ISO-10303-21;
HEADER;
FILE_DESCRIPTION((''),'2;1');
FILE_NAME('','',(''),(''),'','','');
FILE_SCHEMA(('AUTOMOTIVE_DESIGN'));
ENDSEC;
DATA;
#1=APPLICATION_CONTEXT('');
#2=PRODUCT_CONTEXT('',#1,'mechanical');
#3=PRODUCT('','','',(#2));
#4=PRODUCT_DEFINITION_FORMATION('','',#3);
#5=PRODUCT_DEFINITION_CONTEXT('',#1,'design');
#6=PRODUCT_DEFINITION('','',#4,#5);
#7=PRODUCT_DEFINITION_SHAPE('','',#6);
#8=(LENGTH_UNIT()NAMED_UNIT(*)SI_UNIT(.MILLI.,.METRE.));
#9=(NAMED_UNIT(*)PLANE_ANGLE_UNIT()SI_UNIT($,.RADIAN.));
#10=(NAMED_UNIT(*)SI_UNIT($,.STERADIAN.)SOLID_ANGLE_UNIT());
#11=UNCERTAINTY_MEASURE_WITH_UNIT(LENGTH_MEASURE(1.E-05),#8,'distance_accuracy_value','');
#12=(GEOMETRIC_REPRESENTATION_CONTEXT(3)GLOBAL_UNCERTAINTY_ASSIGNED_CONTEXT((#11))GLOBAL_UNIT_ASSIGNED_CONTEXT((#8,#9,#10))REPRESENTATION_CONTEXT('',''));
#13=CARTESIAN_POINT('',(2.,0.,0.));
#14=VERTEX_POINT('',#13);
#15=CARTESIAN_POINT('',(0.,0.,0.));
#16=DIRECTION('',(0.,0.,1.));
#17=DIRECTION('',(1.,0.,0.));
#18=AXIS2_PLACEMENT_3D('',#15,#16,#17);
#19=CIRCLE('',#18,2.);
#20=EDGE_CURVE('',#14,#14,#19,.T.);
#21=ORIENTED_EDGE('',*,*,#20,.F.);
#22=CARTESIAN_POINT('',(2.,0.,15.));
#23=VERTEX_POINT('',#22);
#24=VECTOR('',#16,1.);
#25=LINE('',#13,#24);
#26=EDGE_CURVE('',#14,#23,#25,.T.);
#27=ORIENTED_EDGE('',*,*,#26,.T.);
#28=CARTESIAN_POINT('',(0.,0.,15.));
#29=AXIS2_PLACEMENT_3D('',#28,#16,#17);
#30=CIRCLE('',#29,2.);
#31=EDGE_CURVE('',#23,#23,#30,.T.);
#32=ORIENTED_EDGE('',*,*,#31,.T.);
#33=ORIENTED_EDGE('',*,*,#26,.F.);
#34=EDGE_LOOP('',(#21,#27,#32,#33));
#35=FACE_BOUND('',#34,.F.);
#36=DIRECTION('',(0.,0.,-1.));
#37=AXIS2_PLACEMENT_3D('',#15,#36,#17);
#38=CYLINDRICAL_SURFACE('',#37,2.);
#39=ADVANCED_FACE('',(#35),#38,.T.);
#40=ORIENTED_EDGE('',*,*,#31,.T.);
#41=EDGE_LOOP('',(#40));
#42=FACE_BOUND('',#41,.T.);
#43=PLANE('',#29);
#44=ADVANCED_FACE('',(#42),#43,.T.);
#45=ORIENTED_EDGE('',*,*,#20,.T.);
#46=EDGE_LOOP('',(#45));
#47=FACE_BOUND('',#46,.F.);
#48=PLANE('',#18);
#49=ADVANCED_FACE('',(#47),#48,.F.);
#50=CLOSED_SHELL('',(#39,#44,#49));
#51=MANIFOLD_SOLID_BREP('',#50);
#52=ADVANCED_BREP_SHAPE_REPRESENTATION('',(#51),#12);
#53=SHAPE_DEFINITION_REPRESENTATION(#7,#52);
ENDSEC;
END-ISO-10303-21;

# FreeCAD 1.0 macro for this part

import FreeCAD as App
import Part
import Sketcher
from FreeCAD import Vector

doc = App.newDocument("Part")
params = doc.addObject("Spreadsheet::Sheet", "Params")
for row, (alias, value) in enumerate([
    ("sketch1_diameter", "4 mm"),
    ("pad1_length", "15 mm"),
], start=1):
    params.set(f"A{row}", alias)
    params.set(f"B{row}", "=" + value)
    params.setAlias(f"B{row}", alias)

body = doc.addObject("PartDesign::Body", "Body")

sketch1 = doc.addObject("Sketcher::SketchObject", "Sketch")
body.addObject(sketch1)
sketch1.AttachmentSupport = (doc.XY_Plane, [""])
sketch1.MapMode = "FlatFace"
sketch1.addGeometry(Part.Circle(Vector(0, 0, 0), Vector(0, 0, 1), 2), False)
sketch1.addConstraint([
    Sketcher.Constraint("Coincident", 0, 3, -1, 1),
    Sketcher.Constraint("Diameter", 0, 4.0),
])
sketch1.setExpression("Constraints[1]", "Params.sketch1_diameter")
pad1 = doc.addObject("PartDesign::Pad", "Pad")
body.addObject(pad1)
pad1.Profile = sketch1
pad1.setExpression("Length", "Params.pad1_length")

doc.recompute()
